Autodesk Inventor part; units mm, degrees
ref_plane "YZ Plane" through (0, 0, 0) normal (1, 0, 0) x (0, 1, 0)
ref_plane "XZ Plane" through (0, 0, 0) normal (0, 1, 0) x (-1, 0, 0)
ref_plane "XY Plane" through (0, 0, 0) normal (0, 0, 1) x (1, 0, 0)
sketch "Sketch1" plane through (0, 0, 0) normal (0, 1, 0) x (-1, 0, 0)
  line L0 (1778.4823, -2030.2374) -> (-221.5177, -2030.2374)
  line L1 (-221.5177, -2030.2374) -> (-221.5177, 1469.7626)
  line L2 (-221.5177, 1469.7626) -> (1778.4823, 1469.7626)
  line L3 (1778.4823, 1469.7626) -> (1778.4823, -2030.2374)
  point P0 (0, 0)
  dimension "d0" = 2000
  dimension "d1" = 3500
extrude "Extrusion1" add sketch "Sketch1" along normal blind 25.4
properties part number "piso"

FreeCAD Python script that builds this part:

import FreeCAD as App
import Part
import Sketcher

V = App.Vector


def add_polygon(sketch, points):
    """Adds a closed chain of lines whose ends are joined by coincident constraints."""
    first, n = sketch.GeometryCount, len(points)
    for a, b in zip(points, points[1:] + points[:1]):
        sketch.addGeometry(Part.LineSegment(App.Vector(*a, 0), App.Vector(*b, 0)), False)
    for i in range(n):
        sketch.addConstraint(Sketcher.Constraint("Coincident", first + i, 2, first + (i + 1) % n, 1))

doc = App.newDocument("Part")
body = doc.addObject("PartDesign::Body", "Body")

# Sketch on XZ plane
sketch1 = body.newObject("Sketcher::SketchObject", "Sketch")
sketch1.AttachmentSupport = (doc.getObject("XZ_Plane"), [""])
sketch1.MapMode = "FlatFace"
add_polygon(sketch1, [(222, -2030), (-1778, -2030), (-1778, 1470), (222, 1470)])  # lines 0-3
sketch1.addConstraint([
    Sketcher.Constraint("Horizontal", 0),
    Sketcher.Constraint("Vertical", 1),
    Sketcher.Constraint("Horizontal", 2),
    Sketcher.Constraint("Vertical", 3),
    Sketcher.Constraint("DistanceX", 0, 2, 0, 1, 2000.0),
    Sketcher.Constraint("DistanceY", 1, 1, 1, 2, 3500.0),
    Sketcher.Constraint("DistanceX", 0, 2, -1, 1, 1778.4823),
    Sketcher.Constraint("DistanceY", 0, 2, -1, 1, 2030.2374),
])
pad1 = body.newObject("PartDesign::Pad", "Pad")
pad1.Profile = sketch1
pad1.Length = 25.4
pad1.Reversed = True

doc.recompute()
